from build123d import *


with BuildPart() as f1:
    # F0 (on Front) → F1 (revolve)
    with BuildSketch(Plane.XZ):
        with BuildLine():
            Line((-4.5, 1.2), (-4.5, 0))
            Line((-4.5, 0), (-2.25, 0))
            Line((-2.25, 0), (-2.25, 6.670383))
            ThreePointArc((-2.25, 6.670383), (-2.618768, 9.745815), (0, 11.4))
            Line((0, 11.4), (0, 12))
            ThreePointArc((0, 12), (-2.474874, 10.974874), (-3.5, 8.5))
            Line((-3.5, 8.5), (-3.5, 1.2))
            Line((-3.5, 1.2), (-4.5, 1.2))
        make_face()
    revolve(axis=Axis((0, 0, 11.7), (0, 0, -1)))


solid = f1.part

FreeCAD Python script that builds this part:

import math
import FreeCAD as App
import Part
import Sketcher

V = App.Vector
Q = App.Units.Quantity

doc = App.newDocument("Part")
body = doc.addObject("PartDesign::Body", "Body")

# Sketch on XZ plane
sketch1 = doc.addObject("Sketcher::SketchObject", "Sketch")
body.addObject(sketch1)
sketch1.AttachmentSupport = (doc.XZ_Plane, [""])
sketch1.MapMode = "FlatFace"
sketch1.addGeometry(Part.LineSegment(V(-4.5, 1.2, 0), V(-4.5, 0, 0)), False)
sketch1.addGeometry(Part.LineSegment(V(-4.5, 0, 0), V(-2.2, 0, 0)), False)
sketch1.addGeometry(Part.LineSegment(V(-2.2, 0, 0), V(-2.2, 6.7, 0)), False)
sketch1.addGeometry(Part.ArcOfCircle(Part.Circle(V(0, 8.5, 0), V(0, 0, 1), 2.9), math.radians(90), math.radians(219)), False)
sketch1.addGeometry(Part.LineSegment(V(0, 11.4, 0), V(0, 12, 0)), False)
sketch1.addGeometry(Part.ArcOfCircle(Part.Circle(V(0, 8.5, 0), V(0, 0, 1), 3.5), math.radians(90), math.radians(180)), False)
sketch1.addGeometry(Part.LineSegment(V(-3.5, 8.5, 0), V(-3.5, 1.2, 0)), False)
sketch1.addGeometry(Part.LineSegment(V(-3.5, 1.2, 0), V(-4.5, 1.2, 0)), False)
sketch1.addConstraint(Sketcher.Constraint("Coincident", 0, 2, 1, 1))
sketch1.addConstraint(Sketcher.Constraint("Coincident", 1, 2, 2, 1))
sketch1.addConstraint(Sketcher.Constraint("Coincident", 2, 2, 3, 2))
sketch1.addConstraint(Sketcher.Constraint("Coincident", 3, 1, 4, 1))
sketch1.addConstraint(Sketcher.Constraint("Coincident", 4, 2, 5, 1))
sketch1.addConstraint(Sketcher.Constraint("Tangent", 5, 2, 6, 1))
sketch1.addConstraint(Sketcher.Constraint("Coincident", 6, 2, 7, 1))
sketch1.addConstraint(Sketcher.Constraint("Coincident", 7, 2, 0, 1))
sketch1.addConstraint(Sketcher.Constraint("Vertical", 0))
sketch1.addConstraint(Sketcher.Constraint("Horizontal", 1))
sketch1.addConstraint(Sketcher.Constraint("Vertical", 2))
sketch1.addConstraint(Sketcher.Constraint("Vertical", 4))
sketch1.addConstraint(Sketcher.Constraint("Vertical", 6))
sketch1.addConstraint(Sketcher.Constraint("Horizontal", 7))
sketch1.addConstraint(Sketcher.Constraint("Coincident", 5, 3, 3, 3))
sketch1.addConstraint(Sketcher.Constraint("PointOnObject", 3, 3, -2))
sketch1.addConstraint(Sketcher.Constraint("PointOnObject", 0, 2, -1))
sketch1.addConstraint(Sketcher.Constraint("PointOnObject", 3, 1, -2))
sketch1.addConstraint(Sketcher.Constraint("Radius", 3, Q("2.9 mm")))
sketch1.addConstraint(Sketcher.Constraint("Radius", 5, Q("3.499999 mm")))
sketch1.addConstraint(Sketcher.Constraint("DistanceX", 7, 2, 7, 1, Q("1 mm")))
sketch1.addConstraint(Sketcher.Constraint("DistanceY", 0, 2, 0, 1, Q("1.2 mm")))
sketch1.addConstraint(Sketcher.Constraint("DistanceY", 6, 2, 6, 1, Q("7.3 mm")))
sketch1.addConstraint(Sketcher.Constraint("DistanceX", 1, 1, 1, 2, Q("2.25 mm")))
revolution = doc.addObject("PartDesign::Revolution", "Revolution")
body.addObject(revolution)
revolution.Profile = sketch1
revolution.ReferenceAxis = (sketch1, ["V_Axis"])
revolution.Angle = 360

doc.recompute()
